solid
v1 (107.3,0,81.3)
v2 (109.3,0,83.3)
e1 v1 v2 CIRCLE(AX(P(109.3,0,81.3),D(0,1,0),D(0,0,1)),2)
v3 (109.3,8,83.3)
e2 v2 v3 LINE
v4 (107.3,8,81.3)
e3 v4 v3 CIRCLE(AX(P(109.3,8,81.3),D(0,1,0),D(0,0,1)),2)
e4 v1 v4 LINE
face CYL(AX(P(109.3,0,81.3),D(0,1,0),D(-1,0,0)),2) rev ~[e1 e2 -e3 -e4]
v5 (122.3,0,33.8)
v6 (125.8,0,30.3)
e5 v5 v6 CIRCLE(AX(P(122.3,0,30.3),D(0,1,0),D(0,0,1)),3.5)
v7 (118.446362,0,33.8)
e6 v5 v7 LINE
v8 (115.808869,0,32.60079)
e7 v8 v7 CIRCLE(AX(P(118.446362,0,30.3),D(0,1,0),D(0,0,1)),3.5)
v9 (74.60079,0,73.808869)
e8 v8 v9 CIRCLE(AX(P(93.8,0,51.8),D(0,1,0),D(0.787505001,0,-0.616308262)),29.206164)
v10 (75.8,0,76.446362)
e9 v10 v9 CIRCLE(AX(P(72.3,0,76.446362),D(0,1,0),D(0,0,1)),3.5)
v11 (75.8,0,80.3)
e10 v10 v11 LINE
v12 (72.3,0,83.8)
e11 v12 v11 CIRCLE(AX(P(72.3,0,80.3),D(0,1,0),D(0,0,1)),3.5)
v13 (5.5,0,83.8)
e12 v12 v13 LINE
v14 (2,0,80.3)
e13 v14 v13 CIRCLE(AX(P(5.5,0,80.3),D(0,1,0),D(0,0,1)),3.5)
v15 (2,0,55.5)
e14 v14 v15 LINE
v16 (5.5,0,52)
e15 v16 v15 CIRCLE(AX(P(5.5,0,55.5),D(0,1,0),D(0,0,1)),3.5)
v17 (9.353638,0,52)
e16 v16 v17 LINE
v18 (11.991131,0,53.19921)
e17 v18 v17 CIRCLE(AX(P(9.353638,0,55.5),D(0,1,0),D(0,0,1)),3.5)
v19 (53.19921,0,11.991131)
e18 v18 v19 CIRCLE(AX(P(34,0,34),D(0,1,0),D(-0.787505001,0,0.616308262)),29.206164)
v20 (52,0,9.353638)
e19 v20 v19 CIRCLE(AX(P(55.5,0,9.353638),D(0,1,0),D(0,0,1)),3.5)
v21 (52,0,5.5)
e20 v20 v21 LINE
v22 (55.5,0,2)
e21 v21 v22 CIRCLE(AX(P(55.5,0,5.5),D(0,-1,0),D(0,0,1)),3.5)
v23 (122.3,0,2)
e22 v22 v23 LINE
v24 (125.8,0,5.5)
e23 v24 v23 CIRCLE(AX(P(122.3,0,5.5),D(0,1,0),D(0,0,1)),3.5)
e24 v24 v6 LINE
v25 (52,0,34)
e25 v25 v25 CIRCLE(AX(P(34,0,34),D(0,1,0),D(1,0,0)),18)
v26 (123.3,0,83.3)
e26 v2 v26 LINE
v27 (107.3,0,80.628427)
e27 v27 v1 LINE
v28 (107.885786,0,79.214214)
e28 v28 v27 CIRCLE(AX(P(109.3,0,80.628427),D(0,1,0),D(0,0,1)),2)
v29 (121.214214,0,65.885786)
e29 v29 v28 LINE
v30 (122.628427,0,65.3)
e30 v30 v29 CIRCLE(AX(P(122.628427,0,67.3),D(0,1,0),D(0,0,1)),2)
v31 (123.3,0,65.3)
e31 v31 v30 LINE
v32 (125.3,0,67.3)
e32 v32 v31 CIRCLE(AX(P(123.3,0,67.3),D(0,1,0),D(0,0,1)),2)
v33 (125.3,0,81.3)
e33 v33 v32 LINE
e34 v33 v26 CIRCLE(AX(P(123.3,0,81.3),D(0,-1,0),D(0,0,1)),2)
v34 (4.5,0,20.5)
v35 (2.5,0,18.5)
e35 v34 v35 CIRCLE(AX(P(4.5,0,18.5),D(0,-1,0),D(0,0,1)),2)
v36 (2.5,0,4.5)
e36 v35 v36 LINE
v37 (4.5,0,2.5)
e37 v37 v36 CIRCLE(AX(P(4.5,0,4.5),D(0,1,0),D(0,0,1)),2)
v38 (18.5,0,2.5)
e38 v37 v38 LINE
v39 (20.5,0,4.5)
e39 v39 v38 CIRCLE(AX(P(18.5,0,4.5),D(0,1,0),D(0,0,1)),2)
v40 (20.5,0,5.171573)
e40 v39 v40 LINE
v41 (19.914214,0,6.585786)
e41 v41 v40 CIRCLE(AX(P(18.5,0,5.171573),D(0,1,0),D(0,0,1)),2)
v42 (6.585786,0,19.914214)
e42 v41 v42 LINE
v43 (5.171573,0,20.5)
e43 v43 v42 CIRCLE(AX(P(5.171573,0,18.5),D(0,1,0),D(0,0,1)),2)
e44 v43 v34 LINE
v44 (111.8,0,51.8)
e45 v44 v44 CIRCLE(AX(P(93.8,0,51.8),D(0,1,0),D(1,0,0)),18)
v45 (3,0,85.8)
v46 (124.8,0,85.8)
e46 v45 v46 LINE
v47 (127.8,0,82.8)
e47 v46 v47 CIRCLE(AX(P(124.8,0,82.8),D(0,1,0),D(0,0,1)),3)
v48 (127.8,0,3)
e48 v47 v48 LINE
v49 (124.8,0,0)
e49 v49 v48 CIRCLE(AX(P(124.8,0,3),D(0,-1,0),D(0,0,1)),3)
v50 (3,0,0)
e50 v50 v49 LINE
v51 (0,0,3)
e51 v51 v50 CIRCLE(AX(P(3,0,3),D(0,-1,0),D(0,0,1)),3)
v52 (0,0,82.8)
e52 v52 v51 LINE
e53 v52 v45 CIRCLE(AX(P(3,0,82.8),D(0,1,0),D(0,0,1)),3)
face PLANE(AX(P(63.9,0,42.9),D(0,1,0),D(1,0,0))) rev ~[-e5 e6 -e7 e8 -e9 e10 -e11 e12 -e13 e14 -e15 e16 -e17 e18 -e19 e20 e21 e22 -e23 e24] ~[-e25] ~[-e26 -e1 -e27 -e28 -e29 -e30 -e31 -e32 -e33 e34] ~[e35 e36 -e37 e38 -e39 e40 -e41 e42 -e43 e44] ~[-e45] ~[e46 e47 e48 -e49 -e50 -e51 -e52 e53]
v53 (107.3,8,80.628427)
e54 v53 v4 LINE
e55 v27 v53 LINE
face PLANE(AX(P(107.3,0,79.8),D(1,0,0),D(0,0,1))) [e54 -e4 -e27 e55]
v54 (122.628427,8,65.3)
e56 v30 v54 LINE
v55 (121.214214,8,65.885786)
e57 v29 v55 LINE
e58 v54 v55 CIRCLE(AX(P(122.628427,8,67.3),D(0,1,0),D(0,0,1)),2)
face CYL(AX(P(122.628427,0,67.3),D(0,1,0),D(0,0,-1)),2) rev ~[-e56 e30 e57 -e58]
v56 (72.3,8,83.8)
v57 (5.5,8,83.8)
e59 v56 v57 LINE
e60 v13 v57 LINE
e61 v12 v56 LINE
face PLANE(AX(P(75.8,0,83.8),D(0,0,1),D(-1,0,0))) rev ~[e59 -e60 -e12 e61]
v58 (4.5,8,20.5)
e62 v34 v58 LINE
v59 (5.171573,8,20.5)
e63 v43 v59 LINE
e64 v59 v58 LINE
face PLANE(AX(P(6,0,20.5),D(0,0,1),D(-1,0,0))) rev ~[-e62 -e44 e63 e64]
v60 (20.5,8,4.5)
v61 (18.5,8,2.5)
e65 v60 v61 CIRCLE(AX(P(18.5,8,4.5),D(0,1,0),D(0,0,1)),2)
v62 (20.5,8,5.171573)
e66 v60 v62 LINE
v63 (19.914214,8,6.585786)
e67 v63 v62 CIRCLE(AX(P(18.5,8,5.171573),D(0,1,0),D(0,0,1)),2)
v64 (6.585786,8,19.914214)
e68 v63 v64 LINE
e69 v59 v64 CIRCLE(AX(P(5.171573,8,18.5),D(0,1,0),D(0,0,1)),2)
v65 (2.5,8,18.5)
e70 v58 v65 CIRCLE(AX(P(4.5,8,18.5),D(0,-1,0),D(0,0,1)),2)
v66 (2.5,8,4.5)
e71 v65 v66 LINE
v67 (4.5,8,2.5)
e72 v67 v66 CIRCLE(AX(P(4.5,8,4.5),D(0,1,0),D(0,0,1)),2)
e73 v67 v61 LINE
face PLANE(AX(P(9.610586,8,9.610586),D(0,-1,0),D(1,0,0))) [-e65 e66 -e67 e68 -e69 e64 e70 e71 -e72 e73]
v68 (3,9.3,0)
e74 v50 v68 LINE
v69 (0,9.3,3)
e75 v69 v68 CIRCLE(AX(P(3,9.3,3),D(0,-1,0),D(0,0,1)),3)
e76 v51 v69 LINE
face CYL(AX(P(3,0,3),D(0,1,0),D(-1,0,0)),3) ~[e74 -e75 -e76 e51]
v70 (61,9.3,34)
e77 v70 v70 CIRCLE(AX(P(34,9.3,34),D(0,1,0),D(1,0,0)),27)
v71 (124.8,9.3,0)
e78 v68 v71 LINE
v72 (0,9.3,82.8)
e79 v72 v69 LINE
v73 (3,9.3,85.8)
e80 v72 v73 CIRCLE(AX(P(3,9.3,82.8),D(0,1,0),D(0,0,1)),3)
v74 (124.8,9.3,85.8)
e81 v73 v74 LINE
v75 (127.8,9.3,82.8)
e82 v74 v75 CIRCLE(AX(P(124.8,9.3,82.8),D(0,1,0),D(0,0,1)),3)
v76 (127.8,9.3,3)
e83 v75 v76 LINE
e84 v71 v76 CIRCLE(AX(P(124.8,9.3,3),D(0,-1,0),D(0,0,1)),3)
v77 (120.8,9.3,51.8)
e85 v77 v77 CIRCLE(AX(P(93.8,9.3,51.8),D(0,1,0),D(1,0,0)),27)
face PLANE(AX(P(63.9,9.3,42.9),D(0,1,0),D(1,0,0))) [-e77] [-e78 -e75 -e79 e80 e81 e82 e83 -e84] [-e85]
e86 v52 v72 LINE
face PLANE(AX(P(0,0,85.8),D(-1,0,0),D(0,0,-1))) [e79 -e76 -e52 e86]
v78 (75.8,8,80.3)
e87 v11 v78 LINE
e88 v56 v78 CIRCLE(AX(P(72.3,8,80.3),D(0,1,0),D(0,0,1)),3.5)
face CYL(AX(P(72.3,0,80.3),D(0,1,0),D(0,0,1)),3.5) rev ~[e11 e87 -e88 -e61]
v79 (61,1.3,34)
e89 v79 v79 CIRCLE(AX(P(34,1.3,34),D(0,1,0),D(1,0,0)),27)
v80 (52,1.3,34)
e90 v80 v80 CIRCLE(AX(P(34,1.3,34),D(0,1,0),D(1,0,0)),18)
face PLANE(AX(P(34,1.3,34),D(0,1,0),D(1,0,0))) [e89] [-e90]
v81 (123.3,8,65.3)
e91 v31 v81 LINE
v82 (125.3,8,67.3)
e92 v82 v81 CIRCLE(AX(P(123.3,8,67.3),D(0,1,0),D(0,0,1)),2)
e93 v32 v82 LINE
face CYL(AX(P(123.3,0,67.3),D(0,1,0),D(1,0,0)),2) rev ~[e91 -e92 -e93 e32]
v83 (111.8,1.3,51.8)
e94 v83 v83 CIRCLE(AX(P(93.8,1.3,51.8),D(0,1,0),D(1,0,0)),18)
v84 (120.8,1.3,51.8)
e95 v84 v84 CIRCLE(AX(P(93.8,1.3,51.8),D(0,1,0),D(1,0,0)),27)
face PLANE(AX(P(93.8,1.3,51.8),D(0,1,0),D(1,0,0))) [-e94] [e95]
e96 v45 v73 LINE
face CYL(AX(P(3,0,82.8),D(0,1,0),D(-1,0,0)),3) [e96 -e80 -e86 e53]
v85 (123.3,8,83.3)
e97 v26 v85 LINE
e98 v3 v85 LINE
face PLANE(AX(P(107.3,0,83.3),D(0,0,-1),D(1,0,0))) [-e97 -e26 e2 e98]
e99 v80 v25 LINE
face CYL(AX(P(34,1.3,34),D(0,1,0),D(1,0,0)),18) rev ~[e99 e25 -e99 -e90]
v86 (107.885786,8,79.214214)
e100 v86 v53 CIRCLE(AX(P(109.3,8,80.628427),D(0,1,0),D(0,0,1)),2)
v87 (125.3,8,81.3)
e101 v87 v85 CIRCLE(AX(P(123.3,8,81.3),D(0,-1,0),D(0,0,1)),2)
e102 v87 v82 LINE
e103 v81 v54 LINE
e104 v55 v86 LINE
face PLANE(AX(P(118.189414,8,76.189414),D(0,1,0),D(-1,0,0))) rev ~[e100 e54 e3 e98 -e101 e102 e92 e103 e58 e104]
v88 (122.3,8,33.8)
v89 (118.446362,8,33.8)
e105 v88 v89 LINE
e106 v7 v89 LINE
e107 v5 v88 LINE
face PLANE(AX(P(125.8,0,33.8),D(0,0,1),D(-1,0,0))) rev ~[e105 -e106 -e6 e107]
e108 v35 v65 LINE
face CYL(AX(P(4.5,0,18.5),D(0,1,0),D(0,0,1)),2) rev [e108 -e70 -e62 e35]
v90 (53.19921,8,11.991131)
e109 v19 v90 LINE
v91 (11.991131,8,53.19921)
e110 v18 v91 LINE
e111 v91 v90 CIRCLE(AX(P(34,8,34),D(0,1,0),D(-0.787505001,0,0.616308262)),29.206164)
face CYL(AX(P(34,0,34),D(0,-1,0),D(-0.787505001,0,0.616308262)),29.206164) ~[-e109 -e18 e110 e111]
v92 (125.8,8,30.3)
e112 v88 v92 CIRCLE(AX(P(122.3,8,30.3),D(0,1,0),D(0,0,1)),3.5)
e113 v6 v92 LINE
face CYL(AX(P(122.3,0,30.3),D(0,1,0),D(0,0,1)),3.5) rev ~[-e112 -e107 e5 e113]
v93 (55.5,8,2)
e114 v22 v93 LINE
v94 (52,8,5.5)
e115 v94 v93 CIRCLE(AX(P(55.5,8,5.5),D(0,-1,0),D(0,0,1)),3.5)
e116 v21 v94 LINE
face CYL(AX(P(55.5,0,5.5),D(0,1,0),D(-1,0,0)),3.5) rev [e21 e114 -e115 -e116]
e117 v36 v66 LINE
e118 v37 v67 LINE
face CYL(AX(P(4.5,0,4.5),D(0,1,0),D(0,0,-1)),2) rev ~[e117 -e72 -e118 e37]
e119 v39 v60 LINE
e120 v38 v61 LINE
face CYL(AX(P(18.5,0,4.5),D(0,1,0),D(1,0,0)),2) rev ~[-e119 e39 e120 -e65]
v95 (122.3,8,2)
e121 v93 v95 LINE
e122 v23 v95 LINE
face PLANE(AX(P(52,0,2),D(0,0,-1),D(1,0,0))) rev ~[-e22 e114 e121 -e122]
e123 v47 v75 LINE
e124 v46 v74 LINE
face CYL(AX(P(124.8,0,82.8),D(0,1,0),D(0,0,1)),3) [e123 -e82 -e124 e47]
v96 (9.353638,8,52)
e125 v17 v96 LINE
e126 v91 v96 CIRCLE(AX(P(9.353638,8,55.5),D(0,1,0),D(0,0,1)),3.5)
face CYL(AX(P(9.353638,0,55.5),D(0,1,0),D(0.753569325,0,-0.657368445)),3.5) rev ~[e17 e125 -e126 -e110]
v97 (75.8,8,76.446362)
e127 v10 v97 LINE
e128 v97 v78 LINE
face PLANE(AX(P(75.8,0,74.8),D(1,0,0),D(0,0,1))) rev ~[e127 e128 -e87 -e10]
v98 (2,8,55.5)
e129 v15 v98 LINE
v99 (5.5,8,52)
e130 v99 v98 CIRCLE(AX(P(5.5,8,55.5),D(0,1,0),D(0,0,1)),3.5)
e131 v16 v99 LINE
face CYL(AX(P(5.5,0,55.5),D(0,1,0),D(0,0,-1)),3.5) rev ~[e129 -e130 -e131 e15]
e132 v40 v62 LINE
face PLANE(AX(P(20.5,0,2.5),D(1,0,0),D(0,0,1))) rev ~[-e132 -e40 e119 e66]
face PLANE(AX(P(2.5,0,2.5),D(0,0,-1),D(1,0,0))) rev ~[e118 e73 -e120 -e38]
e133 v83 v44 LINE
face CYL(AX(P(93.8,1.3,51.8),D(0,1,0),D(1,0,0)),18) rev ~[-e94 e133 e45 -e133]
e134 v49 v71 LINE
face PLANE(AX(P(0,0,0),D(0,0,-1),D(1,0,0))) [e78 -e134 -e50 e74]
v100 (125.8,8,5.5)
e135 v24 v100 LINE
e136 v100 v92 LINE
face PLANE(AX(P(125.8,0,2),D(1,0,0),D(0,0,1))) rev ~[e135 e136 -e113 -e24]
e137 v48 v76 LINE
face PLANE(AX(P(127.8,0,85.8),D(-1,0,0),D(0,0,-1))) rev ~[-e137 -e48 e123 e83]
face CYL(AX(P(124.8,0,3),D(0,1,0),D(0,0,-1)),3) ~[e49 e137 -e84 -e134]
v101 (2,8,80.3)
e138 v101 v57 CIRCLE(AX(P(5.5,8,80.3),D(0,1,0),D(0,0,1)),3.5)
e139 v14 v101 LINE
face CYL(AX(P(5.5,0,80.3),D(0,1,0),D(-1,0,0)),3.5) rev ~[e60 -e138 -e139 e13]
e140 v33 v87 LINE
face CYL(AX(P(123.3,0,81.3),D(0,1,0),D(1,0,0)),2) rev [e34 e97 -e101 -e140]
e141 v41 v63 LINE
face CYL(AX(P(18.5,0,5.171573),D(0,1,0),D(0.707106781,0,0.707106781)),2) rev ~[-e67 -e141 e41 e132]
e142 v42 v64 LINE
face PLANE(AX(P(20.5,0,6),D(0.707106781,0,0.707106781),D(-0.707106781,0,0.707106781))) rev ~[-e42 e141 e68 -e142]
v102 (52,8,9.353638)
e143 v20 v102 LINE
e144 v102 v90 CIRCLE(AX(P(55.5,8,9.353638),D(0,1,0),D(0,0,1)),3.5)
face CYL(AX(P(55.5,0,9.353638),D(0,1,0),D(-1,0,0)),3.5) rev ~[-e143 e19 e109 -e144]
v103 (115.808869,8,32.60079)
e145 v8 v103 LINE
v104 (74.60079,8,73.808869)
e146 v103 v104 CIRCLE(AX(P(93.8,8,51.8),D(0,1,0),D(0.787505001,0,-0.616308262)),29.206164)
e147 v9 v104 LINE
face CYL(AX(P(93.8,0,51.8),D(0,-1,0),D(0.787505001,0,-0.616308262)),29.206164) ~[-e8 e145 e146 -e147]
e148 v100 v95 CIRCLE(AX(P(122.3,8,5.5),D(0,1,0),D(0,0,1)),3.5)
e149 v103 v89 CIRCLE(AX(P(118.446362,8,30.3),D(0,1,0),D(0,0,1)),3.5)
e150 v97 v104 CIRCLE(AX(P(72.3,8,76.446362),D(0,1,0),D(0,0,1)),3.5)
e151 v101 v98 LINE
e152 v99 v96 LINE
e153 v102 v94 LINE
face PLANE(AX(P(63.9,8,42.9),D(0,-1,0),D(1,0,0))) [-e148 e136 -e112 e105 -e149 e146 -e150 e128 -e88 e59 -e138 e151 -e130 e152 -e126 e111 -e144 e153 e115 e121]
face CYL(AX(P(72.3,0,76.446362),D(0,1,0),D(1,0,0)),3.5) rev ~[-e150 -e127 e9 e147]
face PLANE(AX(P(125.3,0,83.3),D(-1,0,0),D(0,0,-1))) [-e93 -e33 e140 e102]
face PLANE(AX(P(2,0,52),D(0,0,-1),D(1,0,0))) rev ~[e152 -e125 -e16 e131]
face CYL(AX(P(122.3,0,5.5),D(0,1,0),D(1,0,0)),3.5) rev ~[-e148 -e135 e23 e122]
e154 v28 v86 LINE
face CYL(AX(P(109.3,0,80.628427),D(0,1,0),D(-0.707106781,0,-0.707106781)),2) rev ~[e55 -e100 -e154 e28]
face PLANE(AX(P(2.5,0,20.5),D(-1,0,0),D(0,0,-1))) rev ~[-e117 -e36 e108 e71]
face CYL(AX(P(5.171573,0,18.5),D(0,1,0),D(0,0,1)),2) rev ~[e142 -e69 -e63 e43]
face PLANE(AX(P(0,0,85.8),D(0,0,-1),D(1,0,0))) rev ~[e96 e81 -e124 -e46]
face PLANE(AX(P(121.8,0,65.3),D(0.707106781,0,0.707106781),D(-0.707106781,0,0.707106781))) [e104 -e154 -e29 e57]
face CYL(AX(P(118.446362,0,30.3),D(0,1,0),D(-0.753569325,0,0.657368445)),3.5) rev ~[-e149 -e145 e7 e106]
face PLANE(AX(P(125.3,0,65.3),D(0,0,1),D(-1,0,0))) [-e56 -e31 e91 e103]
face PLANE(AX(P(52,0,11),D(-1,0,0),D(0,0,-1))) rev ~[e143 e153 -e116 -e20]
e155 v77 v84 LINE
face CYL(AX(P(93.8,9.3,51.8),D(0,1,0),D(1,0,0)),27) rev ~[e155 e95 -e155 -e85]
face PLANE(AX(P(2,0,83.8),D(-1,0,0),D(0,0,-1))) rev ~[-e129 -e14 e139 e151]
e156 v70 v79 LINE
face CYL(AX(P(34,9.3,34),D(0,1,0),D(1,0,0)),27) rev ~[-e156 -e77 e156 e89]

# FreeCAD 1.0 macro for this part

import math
import FreeCAD as App
import Part
import Sketcher
from FreeCAD import Vector
Q = App.Units.Quantity


def edges_at(feature, points):
    """Names of the edges that pass closest to the given points."""
    edges = feature.Shape.Edges
    near = lambda p: min(range(len(edges)), key=lambda i: edges[i].distToShape(Part.Vertex(*p))[0])
    return sorted({f"Edge{near(p) + 1}" for p in points})


def add_polygon(sketch, points):
    """Adds a closed chain of lines whose ends are joined by coincident constraints."""
    first, n = sketch.GeometryCount, len(points)
    for a, b in zip(points, points[1:] + points[:1]):
        sketch.addGeometry(Part.LineSegment(App.Vector(*a, 0), App.Vector(*b, 0)), False)
    for i in range(n):
        sketch.addConstraint(Sketcher.Constraint("Coincident", first + i, 2, first + (i + 1) % n, 1))

doc = App.newDocument("Part")
body = doc.addObject("PartDesign::Body", "Body")

sketch1 = doc.addObject("Sketcher::SketchObject", "Sketch")
body.addObject(sketch1)
sketch1.AttachmentSupport = (doc.XZ_Plane, [""])
sketch1.MapMode = "FlatFace"
add_polygon(sketch1, [(0, 0), (0, 85.8), (127.8, 85.8), (127.8, 0)])
sketch1.addConstraint([
    Sketcher.Constraint("Vertical", 0),
    Sketcher.Constraint("Horizontal", 1),
    Sketcher.Constraint("Vertical", 2),
    Sketcher.Constraint("Horizontal", 3),
    Sketcher.Constraint("Coincident", 3, 2, -1, 1),
    Sketcher.Constraint("DistanceX", 1, 1, 1, 2, Q("127.8 mm")),
    Sketcher.Constraint("DistanceY", 0, 1, 0, 2, Q("85.8 mm")),
])
pad1 = doc.addObject("PartDesign::Pad", "Pad")
body.addObject(pad1)
pad1.Profile = sketch1
pad1.Length = 9.3
pad1.Reversed = True

sketch2 = doc.addObject("Sketcher::SketchObject", "Sketch001")
body.addObject(sketch2)
sketch2.AttachmentSupport = (doc.XZ_Plane, [""])
sketch2.MapMode = "FlatFace"
sketch2.AttachmentOffset = App.Placement(Vector(0, 0, -9.3), App.Rotation())
sketch2.addGeometry([
    Part.Circle(Vector(93.8, 51.8, 0), Vector(0, 0, 1), 27),
    Part.Circle(Vector(34, 34, 0), Vector(0, 0, 1), 27),
], False)
sketch2.addConstraint([
    Sketcher.Constraint("Equal", 0, 1),
    Sketcher.Constraint("Diameter", 0, Q("54 mm")),
    Sketcher.Constraint("DistanceX", -1, 1, 1, 3, Q("34 mm")),
    Sketcher.Constraint("DistanceY", -1, 1, 1, 3, Q("34 mm")),
    Sketcher.Constraint("DistanceX", -1, 1, 0, 3, Q("93.8 mm")),
    Sketcher.Constraint("DistanceY", -1, 1, 0, 3, Q("51.8 mm")),
])
pocket1 = doc.addObject("PartDesign::Pocket", "Pocket")
body.addObject(pocket1)
pocket1.Profile = sketch2
pocket1.Length = 8
pocket1.Reversed = True

sketch3 = doc.addObject("Sketcher::SketchObject", "Sketch002")
body.addObject(sketch3)
sketch3.AttachmentSupport = (doc.XZ_Plane, [""])
sketch3.MapMode = "FlatFace"
sketch3.AttachmentOffset = App.Placement(Vector(0, 0, -1.3), App.Rotation())
sketch3.addGeometry([
    Part.Circle(Vector(93.8, 51.8, 0), Vector(0, 0, 1), 18),
    Part.Circle(Vector(34, 34, 0), Vector(0, 0, 1), 18),
], False)
sketch3.addConstraint([
    Sketcher.Constraint("Equal", 0, 1),
    Sketcher.Constraint("Diameter", 0, Q("36 mm")),
    Sketcher.Constraint("DistanceX", -1, 1, 1, 3, Q("34 mm")),
    Sketcher.Constraint("DistanceY", -1, 1, 1, 3, Q("34 mm")),
    Sketcher.Constraint("DistanceX", -1, 1, 0, 3, Q("93.8 mm")),
    Sketcher.Constraint("DistanceY", -1, 1, 0, 3, Q("51.8 mm")),
])
pocket2 = doc.addObject("PartDesign::Pocket", "Pocket001")
body.addObject(pocket2)
pocket2.Profile = sketch3
pocket2.Length = 9
pocket2.Reversed = True
doc.recompute()

fillet = doc.addObject("PartDesign::Fillet", "Fillet")
body.addObject(fillet)
fillet.Base = (pocket2, edges_at(pocket2, [
    (0, 4.65, 0),
    (127.8, 4.65, 0),
    (127.8, 4.65, 85.8),
    (0, 4.65, 85.8),
]))
fillet.Radius = 3

sketch4 = doc.addObject("Sketcher::SketchObject", "Sketch003")
body.addObject(sketch4)
sketch4.AttachmentSupport = (doc.XZ_Plane, [""])
sketch4.MapMode = "FlatFace"
sketch4.addGeometry(Part.LineSegment(Vector(52, 2, 0), Vector(125.8, 2, 0)), False)
sketch4.addGeometry(Part.LineSegment(Vector(125.8, 2, 0), Vector(125.8, 33.8, 0)), False)
sketch4.addGeometry(Part.LineSegment(Vector(125.8, 33.8, 0), Vector(116.8, 33.8, 0)), False)
sketch4.addGeometry(Part.ArcOfCircle(Part.Circle(Vector(93.8, 51.8, 0), Vector(0, 0, 1), 29.206164), math.radians(128.047043), math.radians(321.952957)), False)
sketch4.addGeometry(Part.LineSegment(Vector(75.8, 74.8, 0), Vector(75.8, 83.8, 0)), False)
sketch4.addGeometry(Part.LineSegment(Vector(75.8, 83.8, 0), Vector(2, 83.8, 0)), False)
sketch4.addGeometry(Part.LineSegment(Vector(2, 83.8, 0), Vector(2, 52, 0)), False)
sketch4.addGeometry(Part.LineSegment(Vector(2, 52, 0), Vector(11, 52, 0)), False)
sketch4.addGeometry(Part.ArcOfCircle(Part.Circle(Vector(34, 34, 0), Vector(0, 0, 1), 29.206164), math.radians(-51.952957), math.radians(141.952957)), False)
sketch4.addGeometry(Part.LineSegment(Vector(52, 11, 0), Vector(52, 2, 0)), False)
add_polygon(sketch4, [(125.3, 65.3), (125.3, 83.3), (107.3, 83.3), (107.3, 79.8), (121.8, 65.3)])
add_polygon(sketch4, [(2.5, 20.5), (2.5, 2.5), (20.5, 2.5), (20.5, 6), (6, 20.5)])
sketch4.addConstraint([
    Sketcher.Constraint("Coincident", 0, 2, 1, 1),
    Sketcher.Constraint("Coincident", 1, 2, 2, 1),
    Sketcher.Constraint("Coincident", 2, 2, 3, 2),
    Sketcher.Constraint("Coincident", 3, 1, 4, 1),
    Sketcher.Constraint("Coincident", 4, 2, 5, 1),
    Sketcher.Constraint("Coincident", 5, 2, 6, 1),
    Sketcher.Constraint("Coincident", 6, 2, 7, 1),
    Sketcher.Constraint("Coincident", 7, 2, 8, 2),
    Sketcher.Constraint("Coincident", 8, 1, 9, 1),
    Sketcher.Constraint("Coincident", 9, 2, 0, 1),
    Sketcher.Constraint("Horizontal", 0),
    Sketcher.Constraint("Vertical", 1),
    Sketcher.Constraint("Horizontal", 2),
    Sketcher.Constraint("Vertical", 4),
    Sketcher.Constraint("Horizontal", 5),
    Sketcher.Constraint("Vertical", 6),
    Sketcher.Constraint("Horizontal", 7),
    Sketcher.Constraint("Vertical", 9),
    Sketcher.Constraint("Vertical", 10),
    Sketcher.Constraint("Horizontal", 11),
    Sketcher.Constraint("Vertical", 12),
    Sketcher.Constraint("Horizontal", 14),
    Sketcher.Constraint("Vertical", 15),
    Sketcher.Constraint("Horizontal", 16),
    Sketcher.Constraint("Vertical", 17),
    Sketcher.Constraint("Horizontal", 19),
    Sketcher.Constraint("Equal", 3, 8),
    Sketcher.Constraint("Parallel", 13, 18),
    Sketcher.Constraint("Equal", 0, 5),
    Sketcher.Constraint("Equal", 2, 7),
    Sketcher.Constraint("Equal", 11, 16),
    Sketcher.Constraint("Equal", 14, 19),
    Sketcher.Constraint("Equal", 7, 4),
    Sketcher.Constraint("Equal", 1, 6),
    Sketcher.Constraint("Equal", 4, 9),
    Sketcher.Constraint("Equal", 16, 10),
    Sketcher.Constraint("Equal", 19, 12),
    Sketcher.Constraint("Equal", 10, 15),
    Sketcher.Constraint("DistanceX", 2, 2, 2, 1, Q("9 mm")),
    Sketcher.Constraint("DistanceX", 11, 2, 11, 1, Q("18 mm")),
    Sketcher.Constraint("DistanceX", 0, 1, 0, 2, Q("73.8 mm")),
    Sketcher.Constraint("DistanceX", 14, 1, 14, 2, Q("3.5 mm")),
    Sketcher.Constraint("DistanceY", 1, 1, 1, 2, Q("31.8 mm")),
    Sketcher.Constraint("DistanceX", -1, 1, 8, 3, Q("34 mm")),
    Sketcher.Constraint("DistanceY", -1, 1, 8, 3, Q("34 mm")),
    Sketcher.Constraint("DistanceY", -1, 1, 0, 2, Q("2 mm")),
    Sketcher.Constraint("DistanceX", -1, 1, 5, 2, Q("2 mm")),
    Sketcher.Constraint("DistanceY", -1, 1, 6, 2, Q("52 mm")),
    Sketcher.Constraint("DistanceY", -1, 1, 17, 2, Q("6 mm")),
    Sketcher.Constraint("DistanceX", -1, 1, 18, 2, Q("6 mm")),
    Sketcher.Constraint("DistanceY", 3, 3, 12, 2, Q("28 mm")),
    Sketcher.Constraint("DistanceX", 3, 3, 13, 2, Q("28 mm")),
])
pocket3 = doc.addObject("PartDesign::Pocket", "Pocket002")
body.addObject(pocket3)
pocket3.Profile = sketch4
pocket3.Length = 8
doc.recompute()

fillet2 = doc.addObject("PartDesign::Fillet", "Fillet001")
body.addObject(fillet2)
fillet2.Base = (pocket3, edges_at(pocket3, [
    (2.5, 4, 20.5),
    (6, 4, 20.5),
    (20.5, 4, 6),
    (20.5, 4, 2.5),
    (2.5, 4, 2.5),
    (121.8, 4, 65.3),
    (107.3, 4, 79.8),
    (107.3, 4, 83.3),
    (125.3, 4, 83.3),
    (125.3, 4, 65.3),
]))
fillet2.Radius = 2
doc.recompute()

fillet3 = doc.addObject("PartDesign::Fillet", "Fillet002")
body.addObject(fillet3)
fillet3.Base = (fillet2, edges_at(fillet2, [
    (125.8, 4, 2),
    (52, 4, 2),
    (52, 4, 11),
    (11, 4, 52),
    (2, 4, 52),
    (2, 4, 83.8),
    (75.8, 4, 83.8),
    (75.8, 4, 74.8),
    (116.8, 4, 33.8),
    (125.8, 4, 33.8),
]))
fillet3.Radius = 3.5

doc.recompute()
